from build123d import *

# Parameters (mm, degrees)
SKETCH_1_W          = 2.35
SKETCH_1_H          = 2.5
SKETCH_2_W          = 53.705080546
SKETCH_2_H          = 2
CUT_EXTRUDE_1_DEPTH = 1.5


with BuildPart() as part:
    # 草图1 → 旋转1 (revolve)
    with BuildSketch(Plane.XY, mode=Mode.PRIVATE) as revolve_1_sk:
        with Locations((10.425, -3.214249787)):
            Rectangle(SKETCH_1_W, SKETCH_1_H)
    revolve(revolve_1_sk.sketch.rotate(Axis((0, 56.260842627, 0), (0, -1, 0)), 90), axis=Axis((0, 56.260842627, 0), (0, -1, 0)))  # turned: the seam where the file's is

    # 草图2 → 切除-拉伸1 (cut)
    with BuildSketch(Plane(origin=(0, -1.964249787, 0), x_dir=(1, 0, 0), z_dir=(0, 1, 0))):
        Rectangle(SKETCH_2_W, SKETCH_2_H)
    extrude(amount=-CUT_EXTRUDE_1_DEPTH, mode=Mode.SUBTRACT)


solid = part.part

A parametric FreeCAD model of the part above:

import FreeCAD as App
import Part
import Sketcher
Q = App.Units.Quantity


def add_polygon(sketch, points):
    """Adds a closed chain of lines whose ends are joined by coincident constraints."""
    first, n = sketch.GeometryCount, len(points)
    for a, b in zip(points, points[1:] + points[:1]):
        sketch.addGeometry(Part.LineSegment(App.Vector(*a, 0), App.Vector(*b, 0)), False)
    for i in range(n):
        sketch.addConstraint(Sketcher.Constraint("Coincident", first + i, 2, first + (i + 1) % n, 1))

doc = App.newDocument("Part")
body = doc.addObject("PartDesign::Body", "Body")

sketch1 = body.newObject("Sketcher::SketchObject", "Sketch")
sketch1.AttachmentSupport = (doc.getObject("XY_Plane"), [""])
sketch1.MapMode = "FlatFace"
add_polygon(sketch1, [(9.2, -2), (9.2, -4.5), (11.6, -4.5), (11.6, -2)])
sketch1.addConstraint(Sketcher.Constraint("Vertical", 0))
sketch1.addConstraint(Sketcher.Constraint("Horizontal", 1))
sketch1.addConstraint(Sketcher.Constraint("Vertical", 2))
sketch1.addConstraint(Sketcher.Constraint("Horizontal", 3))
sketch1.addConstraint(Sketcher.Constraint("DistanceY", 0, 2, 0, 1, Q("2.5 mm")))
sketch1.addConstraint(Sketcher.Constraint("DistanceX", 1, 1, 1, 2, Q("2.35 mm")))
sketch1.addConstraint(Sketcher.Constraint("DistanceX", -1, 1, 1, 2, Q("11.6 mm")))
sketch1.addConstraint(Sketcher.Constraint("DistanceY", 0, 2, -1, 1, Q("4.46425 mm")))
revolution = body.newObject("PartDesign::Revolution", "Revolution")
revolution.Profile = sketch1
revolution.ReferenceAxis = (sketch1, ["V_Axis"])
revolution.Angle = 360

sketch2 = body.newObject("Sketcher::SketchObject", "Sketch001")
sketch2.AttachmentSupport = (doc.getObject("XZ_Plane"), [""])
sketch2.MapMode = "FlatFace"
sketch2.AttachmentOffset = App.Placement(App.Vector(0, 0, 1.96425), App.Rotation())
add_polygon(sketch2, [(-26.9, -1), (-26.9, 1), (26.9, 1), (26.9, -1)])
sketch2.addConstraint(Sketcher.Constraint("Vertical", 0))
sketch2.addConstraint(Sketcher.Constraint("Horizontal", 1))
sketch2.addConstraint(Sketcher.Constraint("Vertical", 2))
sketch2.addConstraint(Sketcher.Constraint("Horizontal", 3))
sketch2.addConstraint(Sketcher.Constraint("Symmetric", 0, 2, 2, 2, -1, 1))
sketch2.addConstraint(Sketcher.Constraint("DistanceY", 0, 1, 0, 2, Q("2 mm")))
sketch2.addConstraint(Sketcher.Constraint("DistanceX", 1, 1, 1, 2, Q("53.705081 mm")))
pocket1 = body.newObject("PartDesign::Pocket", "Pocket")
pocket1.Profile = sketch2
pocket1.Length = 1.5
pocket1.Reversed = True

doc.recompute()
